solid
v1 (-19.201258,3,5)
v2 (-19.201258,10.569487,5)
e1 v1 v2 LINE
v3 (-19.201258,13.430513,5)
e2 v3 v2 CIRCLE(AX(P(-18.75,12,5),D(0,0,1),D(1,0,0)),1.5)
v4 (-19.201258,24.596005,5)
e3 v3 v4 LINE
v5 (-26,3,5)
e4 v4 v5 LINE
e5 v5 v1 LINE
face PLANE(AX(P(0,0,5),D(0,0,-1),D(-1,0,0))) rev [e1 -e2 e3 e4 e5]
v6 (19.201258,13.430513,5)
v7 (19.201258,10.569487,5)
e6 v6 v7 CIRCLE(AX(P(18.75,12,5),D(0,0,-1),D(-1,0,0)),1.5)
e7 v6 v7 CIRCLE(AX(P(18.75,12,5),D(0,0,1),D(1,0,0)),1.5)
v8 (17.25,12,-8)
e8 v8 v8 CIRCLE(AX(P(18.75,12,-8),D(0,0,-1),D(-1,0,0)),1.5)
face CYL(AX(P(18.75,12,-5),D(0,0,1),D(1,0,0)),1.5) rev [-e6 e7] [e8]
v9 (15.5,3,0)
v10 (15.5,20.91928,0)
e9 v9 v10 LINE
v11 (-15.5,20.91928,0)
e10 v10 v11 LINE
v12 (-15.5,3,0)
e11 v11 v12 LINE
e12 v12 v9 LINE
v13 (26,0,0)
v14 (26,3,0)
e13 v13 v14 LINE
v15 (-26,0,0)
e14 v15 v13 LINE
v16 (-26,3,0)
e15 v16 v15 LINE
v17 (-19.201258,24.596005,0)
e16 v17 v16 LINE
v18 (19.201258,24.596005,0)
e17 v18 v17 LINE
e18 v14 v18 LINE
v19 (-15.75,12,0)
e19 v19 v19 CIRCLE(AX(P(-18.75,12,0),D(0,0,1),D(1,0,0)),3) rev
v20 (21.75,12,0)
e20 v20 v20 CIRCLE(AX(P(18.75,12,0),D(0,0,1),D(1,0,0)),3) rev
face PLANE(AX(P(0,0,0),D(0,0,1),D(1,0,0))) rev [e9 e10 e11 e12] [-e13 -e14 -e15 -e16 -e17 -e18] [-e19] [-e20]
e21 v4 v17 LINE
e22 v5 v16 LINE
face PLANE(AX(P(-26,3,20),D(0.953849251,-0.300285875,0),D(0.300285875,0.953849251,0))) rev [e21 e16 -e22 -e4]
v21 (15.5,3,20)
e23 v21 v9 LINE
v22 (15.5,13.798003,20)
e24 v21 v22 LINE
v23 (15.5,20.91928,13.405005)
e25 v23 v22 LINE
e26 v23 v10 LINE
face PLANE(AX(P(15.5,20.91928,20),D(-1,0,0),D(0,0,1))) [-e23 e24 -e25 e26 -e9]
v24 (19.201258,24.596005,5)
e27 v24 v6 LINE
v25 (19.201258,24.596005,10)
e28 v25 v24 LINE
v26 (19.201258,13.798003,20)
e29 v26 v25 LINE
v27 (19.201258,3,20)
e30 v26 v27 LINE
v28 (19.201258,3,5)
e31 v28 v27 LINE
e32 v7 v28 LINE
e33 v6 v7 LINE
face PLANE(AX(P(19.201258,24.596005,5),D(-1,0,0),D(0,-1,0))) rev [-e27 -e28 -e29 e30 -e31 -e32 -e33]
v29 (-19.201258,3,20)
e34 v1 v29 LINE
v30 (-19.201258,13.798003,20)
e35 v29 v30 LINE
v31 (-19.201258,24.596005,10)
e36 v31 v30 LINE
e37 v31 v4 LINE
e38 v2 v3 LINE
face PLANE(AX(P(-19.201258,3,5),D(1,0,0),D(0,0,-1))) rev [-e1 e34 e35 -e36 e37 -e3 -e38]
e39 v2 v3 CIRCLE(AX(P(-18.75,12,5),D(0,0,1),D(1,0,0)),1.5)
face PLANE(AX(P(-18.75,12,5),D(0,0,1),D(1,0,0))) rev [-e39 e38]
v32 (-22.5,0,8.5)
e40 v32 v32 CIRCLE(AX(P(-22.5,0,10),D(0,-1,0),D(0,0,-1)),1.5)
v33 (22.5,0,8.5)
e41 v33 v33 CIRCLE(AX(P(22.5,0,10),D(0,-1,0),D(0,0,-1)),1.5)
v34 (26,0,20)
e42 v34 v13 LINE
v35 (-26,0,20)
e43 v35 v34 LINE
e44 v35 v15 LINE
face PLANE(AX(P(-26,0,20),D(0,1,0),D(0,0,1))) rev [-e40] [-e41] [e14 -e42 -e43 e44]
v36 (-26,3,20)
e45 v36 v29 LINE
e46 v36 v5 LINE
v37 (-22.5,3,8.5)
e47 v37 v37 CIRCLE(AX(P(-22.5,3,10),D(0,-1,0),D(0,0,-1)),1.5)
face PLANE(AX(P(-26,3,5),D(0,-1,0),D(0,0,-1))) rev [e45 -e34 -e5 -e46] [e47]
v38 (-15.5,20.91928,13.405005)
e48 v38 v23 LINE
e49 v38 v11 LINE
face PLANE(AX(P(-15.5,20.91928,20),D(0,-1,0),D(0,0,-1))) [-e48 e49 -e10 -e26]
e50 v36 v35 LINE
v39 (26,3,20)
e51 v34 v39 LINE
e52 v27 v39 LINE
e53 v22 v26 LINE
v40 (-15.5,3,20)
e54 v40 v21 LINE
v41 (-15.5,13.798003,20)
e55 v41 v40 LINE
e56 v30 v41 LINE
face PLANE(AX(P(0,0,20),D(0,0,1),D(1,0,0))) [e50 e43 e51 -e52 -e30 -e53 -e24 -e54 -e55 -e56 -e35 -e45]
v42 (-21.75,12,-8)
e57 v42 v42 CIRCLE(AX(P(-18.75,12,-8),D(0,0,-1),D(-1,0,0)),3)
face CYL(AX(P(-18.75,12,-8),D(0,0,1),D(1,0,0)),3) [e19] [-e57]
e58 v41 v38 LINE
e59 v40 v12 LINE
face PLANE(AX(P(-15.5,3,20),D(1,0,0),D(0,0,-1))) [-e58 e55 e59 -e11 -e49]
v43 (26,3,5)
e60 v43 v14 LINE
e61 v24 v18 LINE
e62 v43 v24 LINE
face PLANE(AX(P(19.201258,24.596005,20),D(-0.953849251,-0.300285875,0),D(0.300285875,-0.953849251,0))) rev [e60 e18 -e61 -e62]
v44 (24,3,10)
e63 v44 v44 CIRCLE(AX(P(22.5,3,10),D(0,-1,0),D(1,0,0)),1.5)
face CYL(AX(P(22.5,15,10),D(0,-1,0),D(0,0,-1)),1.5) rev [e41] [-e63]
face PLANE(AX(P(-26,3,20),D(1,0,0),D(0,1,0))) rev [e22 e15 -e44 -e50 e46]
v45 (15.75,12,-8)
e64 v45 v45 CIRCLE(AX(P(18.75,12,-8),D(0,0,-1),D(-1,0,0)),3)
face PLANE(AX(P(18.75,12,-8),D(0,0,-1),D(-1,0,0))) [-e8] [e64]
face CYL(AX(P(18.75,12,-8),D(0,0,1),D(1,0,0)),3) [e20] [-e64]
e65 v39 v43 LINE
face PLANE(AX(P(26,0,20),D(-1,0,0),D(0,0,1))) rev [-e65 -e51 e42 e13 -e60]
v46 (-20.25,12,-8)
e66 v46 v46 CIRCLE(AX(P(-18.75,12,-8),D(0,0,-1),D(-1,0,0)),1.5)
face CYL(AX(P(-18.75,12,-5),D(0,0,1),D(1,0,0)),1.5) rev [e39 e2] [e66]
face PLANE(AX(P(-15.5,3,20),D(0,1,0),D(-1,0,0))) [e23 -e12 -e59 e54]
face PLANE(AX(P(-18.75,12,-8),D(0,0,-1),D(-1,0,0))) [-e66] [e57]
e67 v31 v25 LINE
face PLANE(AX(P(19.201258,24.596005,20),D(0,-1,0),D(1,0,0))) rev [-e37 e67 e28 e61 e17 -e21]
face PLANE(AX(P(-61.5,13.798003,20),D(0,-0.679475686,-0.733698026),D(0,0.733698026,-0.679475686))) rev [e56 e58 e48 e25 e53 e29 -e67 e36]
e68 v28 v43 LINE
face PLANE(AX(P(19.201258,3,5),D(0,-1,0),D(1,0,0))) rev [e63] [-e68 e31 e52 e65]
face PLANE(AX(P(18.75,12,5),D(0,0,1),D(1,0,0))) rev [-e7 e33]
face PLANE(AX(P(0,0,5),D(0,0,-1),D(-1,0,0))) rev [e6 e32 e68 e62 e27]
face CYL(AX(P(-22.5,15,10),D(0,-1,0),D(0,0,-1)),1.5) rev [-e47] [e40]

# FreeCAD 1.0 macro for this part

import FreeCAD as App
import Part
import Sketcher

V = App.Vector

doc = App.newDocument("Part")
body = doc.addObject("PartDesign::Body", "Body")

# Sketch on XY plane
sketch1 = doc.addObject("Sketcher::SketchObject", "Sketch")
body.addObject(sketch1)
sketch1.AttachmentSupport = (doc.XY_Plane, [""])
sketch1.MapMode = "FlatFace"
sketch1.addGeometry(Part.LineSegment(V(-26, 0, 0), V(26, 0, 0)), False)
sketch1.addGeometry(Part.LineSegment(V(26, 0, 0), V(26, 3, 0)), False)
sketch1.addGeometry(Part.LineSegment(V(26, 3, 0), V(19.2, 24.6, 0)), False)
sketch1.addGeometry(Part.LineSegment(V(19.2, 24.6, 0), V(-19.2, 24.6, 0)), False)
sketch1.addGeometry(Part.LineSegment(V(-19.2, 24.6, 0), V(-26, 3, 0)), False)
sketch1.addGeometry(Part.LineSegment(V(-26, 3, 0), V(-26, 0, 0)), False)
sketch1.addGeometry(Part.LineSegment(V(15.5, 3, 0), V(-15.5, 3, 0)), False)
sketch1.addGeometry(Part.LineSegment(V(-15.5, 3, 0), V(-15.5, 20.9, 0)), False)
sketch1.addGeometry(Part.LineSegment(V(-15.5, 20.9, 0), V(15.5, 20.9, 0)), False)
sketch1.addGeometry(Part.LineSegment(V(15.5, 20.9, 0), V(15.5, 3, 0)), False)
sketch1.addConstraint(Sketcher.Constraint("Coincident", 0, 2, 1, 1))
sketch1.addConstraint(Sketcher.Constraint("Coincident", 1, 2, 2, 1))
sketch1.addConstraint(Sketcher.Constraint("Coincident", 2, 2, 3, 1))
sketch1.addConstraint(Sketcher.Constraint("Coincident", 3, 2, 4, 1))
sketch1.addConstraint(Sketcher.Constraint("Coincident", 4, 2, 5, 1))
sketch1.addConstraint(Sketcher.Constraint("Coincident", 5, 2, 0, 1))
sketch1.addConstraint(Sketcher.Constraint("Coincident", 6, 2, 7, 1))
sketch1.addConstraint(Sketcher.Constraint("Coincident", 7, 2, 8, 1))
sketch1.addConstraint(Sketcher.Constraint("Coincident", 8, 2, 9, 1))
sketch1.addConstraint(Sketcher.Constraint("Coincident", 9, 2, 6, 1))
sketch1.addConstraint(Sketcher.Constraint("Horizontal", 0))
sketch1.addConstraint(Sketcher.Constraint("Vertical", 1))
sketch1.addConstraint(Sketcher.Constraint("Horizontal", 3))
sketch1.addConstraint(Sketcher.Constraint("Vertical", 5))
sketch1.addConstraint(Sketcher.Constraint("Horizontal", 6))
sketch1.addConstraint(Sketcher.Constraint("Vertical", 7))
sketch1.addConstraint(Sketcher.Constraint("Horizontal", 8))
sketch1.addConstraint(Sketcher.Constraint("Vertical", 9))
sketch1.addConstraint(Sketcher.Constraint("Symmetric", 0, 2, 5, 2, -1, 1))
sketch1.addConstraint(Sketcher.Constraint("Horizontal", 1, 2, 4, 2))
sketch1.addConstraint(Sketcher.Constraint("Horizontal", 4, 2, 6, 2))
sketch1.addConstraint(Sketcher.Constraint("Equal", 2, 4))
sketch1.addConstraint(Sketcher.Constraint("DistanceX", 0, 1, 0, 2, 52.0))
sketch1.addConstraint(Sketcher.Constraint("DistanceX", 6, 2, 6, 1, 31.0))
sketch1.addConstraint(Sketcher.Constraint("DistanceY", 1, 1, 1, 2, 3.0))
sketch1.addConstraint(Sketcher.Constraint("DistanceX", 6, 2, -1, 1, 15.5))
sketch1.addConstraint(Sketcher.Constraint("Distance", 2, 22.6409))
sketch1.addConstraint(Sketcher.Constraint("DistanceY", 7, 1, 7, 2, 17.91928))
sketch1.addConstraint(Sketcher.Constraint("DistanceX", 3, 2, 3, 1, 38.402515))
pad1 = doc.addObject("PartDesign::Pad", "Pad")
body.addObject(pad1)
pad1.Profile = sketch1
pad1.Length = 20

# Sketch on YZ plane
sketch2 = doc.addObject("Sketcher::SketchObject", "Sketch001")
body.addObject(sketch2)
sketch2.AttachmentSupport = (doc.YZ_Plane, [""])
sketch2.MapMode = "FlatFace"
sketch2.AttachmentOffset = App.Placement(V(0, 0, -15.5), App.Rotation())
sketch2.addGeometry(Part.LineSegment(V(14, 20, 0), V(25, 10, 0)), False)
sketch2.addGeometry(Part.LineSegment(V(25, 10, 0), V(25, 20, 0)), False)
sketch2.addGeometry(Part.LineSegment(V(25, 20, 0), V(14, 20, 0)), False)
sketch2.addConstraint(Sketcher.Constraint("Coincident", 0, 2, 1, 1))
sketch2.addConstraint(Sketcher.Constraint("Coincident", 1, 2, 2, 1))
sketch2.addConstraint(Sketcher.Constraint("Coincident", 2, 2, 0, 1))
sketch2.addConstraint(Sketcher.Constraint("Vertical", 1))
sketch2.addConstraint(Sketcher.Constraint("Horizontal", 2))
sketch2.addConstraint(Sketcher.Constraint("DistanceY", 1, 1, 1, 2, 10.0))
sketch2.addConstraint(Sketcher.Constraint("DistanceY", -1, 1, 0, 2, 10.0))
sketch2.addConstraint(Sketcher.Constraint("Distance", 0, 14.71723))
sketch2.addConstraint(Sketcher.Constraint("DistanceX", -1, 1, 0, 2, 24.596005))
pocket1 = doc.addObject("PartDesign::Pocket", "Pocket")
body.addObject(pocket1)
pocket1.Profile = sketch2
pocket1.Length = 92
pocket1.Midplane = True

# Sketch on XY plane
sketch3 = doc.addObject("Sketcher::SketchObject", "Sketch002")
body.addObject(sketch3)
sketch3.AttachmentSupport = (doc.XY_Plane, [""])
sketch3.MapMode = "FlatFace"
sketch3.AttachmentOffset = App.Placement(V(0, 0, 20), App.Rotation())
sketch3.addGeometry(Part.LineSegment(V(19, 25, 0), V(19, 3, 0)), False)
sketch3.addGeometry(Part.LineSegment(V(19, 3, 0), V(26, 3, 0)), False)
sketch3.addGeometry(Part.LineSegment(V(26, 3, 0), V(19, 25, 0)), False)
sketch3.addGeometry(Part.LineSegment(V(-19, 25, 0), V(-26, 3, 0)), False)
sketch3.addGeometry(Part.LineSegment(V(-26, 3, 0), V(-19, 3, 0)), False)
sketch3.addGeometry(Part.LineSegment(V(-19, 3, 0), V(-19, 25, 0)), False)
sketch3.addConstraint(Sketcher.Constraint("Coincident", 0, 2, 1, 1))
sketch3.addConstraint(Sketcher.Constraint("Coincident", 1, 2, 2, 1))
sketch3.addConstraint(Sketcher.Constraint("Coincident", 2, 2, 0, 1))
sketch3.addConstraint(Sketcher.Constraint("Coincident", 3, 2, 4, 1))
sketch3.addConstraint(Sketcher.Constraint("Coincident", 4, 2, 5, 1))
sketch3.addConstraint(Sketcher.Constraint("Coincident", 5, 2, 3, 1))
sketch3.addConstraint(Sketcher.Constraint("Vertical", 0))
sketch3.addConstraint(Sketcher.Constraint("Horizontal", 1))
sketch3.addConstraint(Sketcher.Constraint("Horizontal", 4))
sketch3.addConstraint(Sketcher.Constraint("Vertical", 5))
sketch3.addConstraint(Sketcher.Constraint("Symmetric", 1, 2, 3, 2, -2))
sketch3.addConstraint(Sketcher.Constraint("Symmetric", 2, 2, 5, 2, -2))
sketch3.addConstraint(Sketcher.Constraint("DistanceY", -1, 1, 0, 2, 3.0))
sketch3.addConstraint(Sketcher.Constraint("DistanceX", -1, 1, 1, 2, 26.0))
sketch3.addConstraint(Sketcher.Constraint("Distance", 2, 22.6409))
sketch3.addConstraint(Sketcher.Constraint("DistanceX", 1, 1, 1, 2, 6.798742))
pocket2 = doc.addObject("PartDesign::Pocket", "Pocket001")
body.addObject(pocket2)
pocket2.Profile = sketch3
pocket2.Length = 15

# Sketch on XZ plane
sketch4 = doc.addObject("Sketcher::SketchObject", "Sketch003")
body.addObject(sketch4)
sketch4.AttachmentSupport = (doc.XZ_Plane, [""])
sketch4.MapMode = "FlatFace"
sketch4.addGeometry(Part.Circle(V(-22.5, 10, 0), V(0, 0, 1), 1.5), False)
sketch4.addGeometry(Part.Circle(V(22.5, 10, 0), V(0, 0, 1), 1.5), False)
sketch4.addConstraint(Sketcher.Constraint("Equal", 0, 1))
sketch4.addConstraint(Sketcher.Constraint("Symmetric", 0, 3, 1, 3, -2))
sketch4.addConstraint(Sketcher.Constraint("Diameter", 0, 3.0))
sketch4.addConstraint(Sketcher.Constraint("DistanceY", -1, 1, 0, 3, 10.0))
sketch4.addConstraint(Sketcher.Constraint("DistanceX", 0, 3, 1, 3, 45.0))
pocket3 = doc.addObject("PartDesign::Pocket", "Pocket002")
body.addObject(pocket3)
pocket3.Profile = sketch4
pocket3.Length = 15

# Sketch on XY plane
sketch5 = doc.addObject("Sketcher::SketchObject", "Sketch004")
body.addObject(sketch5)
sketch5.AttachmentSupport = (doc.XY_Plane, [""])
sketch5.MapMode = "FlatFace"
sketch5.AttachmentOffset = App.Placement(V(0, 0, 5), App.Rotation())
sketch5.addGeometry(Part.Circle(V(-18.8, 12, 0), V(0, 0, 1), 1.5), False)
sketch5.addGeometry(Part.Circle(V(18.8, 12, 0), V(0, 0, 1), 1.5), False)
sketch5.addConstraint(Sketcher.Constraint("Equal", 0, 1))
sketch5.addConstraint(Sketcher.Constraint("Symmetric", 0, 3, 1, 3, -2))
sketch5.addConstraint(Sketcher.Constraint("Diameter", 0, 3.0))
sketch5.addConstraint(Sketcher.Constraint("DistanceY", -1, 1, 0, 3, 12.0))
sketch5.addConstraint(Sketcher.Constraint("DistanceX", 0, 3, 1, 3, 37.5))
pocket4 = doc.addObject("PartDesign::Pocket", "Pocket003")
body.addObject(pocket4)
pocket4.Profile = sketch5
pocket4.Length = 10

# Sketch on XY plane
sketch6 = doc.addObject("Sketcher::SketchObject", "Sketch005")
body.addObject(sketch6)
sketch6.AttachmentSupport = (doc.XY_Plane, [""])
sketch6.MapMode = "FlatFace"
sketch6.addGeometry(Part.Circle(V(-18.8, 12, 0), V(0, 0, 1), 3), False)
sketch6.addGeometry(Part.Circle(V(-18.8, 12, 0), V(0, 0, 1), 1.5), False)
sketch6.addGeometry(Part.Circle(V(18.8, 12, 0), V(0, 0, 1), 3), False)
sketch6.addGeometry(Part.Circle(V(18.8, 12, 0), V(0, 0, 1), 1.5), False)
sketch6.addConstraint(Sketcher.Constraint("Coincident", 1, 3, 0, 3))
sketch6.addConstraint(Sketcher.Constraint("Coincident", 3, 3, 2, 3))
sketch6.addConstraint(Sketcher.Constraint("Equal", 0, 2))
sketch6.addConstraint(Sketcher.Constraint("Equal", 1, 3))
sketch6.addConstraint(Sketcher.Constraint("Symmetric", 0, 3, 2, 3, -2))
sketch6.addConstraint(Sketcher.Constraint("Diameter", 0, 6.0))
sketch6.addConstraint(Sketcher.Constraint("Diameter", 1, 3.0))
sketch6.addConstraint(Sketcher.Constraint("DistanceY", -1, 1, 0, 3, 12.0))
sketch6.addConstraint(Sketcher.Constraint("DistanceX", 0, 3, 2, 3, 37.5))
pad2 = doc.addObject("PartDesign::Pad", "Pad001")
body.addObject(pad2)
pad2.Profile = sketch6
pad2.Length = 8
pad2.Reversed = True

doc.recompute()
